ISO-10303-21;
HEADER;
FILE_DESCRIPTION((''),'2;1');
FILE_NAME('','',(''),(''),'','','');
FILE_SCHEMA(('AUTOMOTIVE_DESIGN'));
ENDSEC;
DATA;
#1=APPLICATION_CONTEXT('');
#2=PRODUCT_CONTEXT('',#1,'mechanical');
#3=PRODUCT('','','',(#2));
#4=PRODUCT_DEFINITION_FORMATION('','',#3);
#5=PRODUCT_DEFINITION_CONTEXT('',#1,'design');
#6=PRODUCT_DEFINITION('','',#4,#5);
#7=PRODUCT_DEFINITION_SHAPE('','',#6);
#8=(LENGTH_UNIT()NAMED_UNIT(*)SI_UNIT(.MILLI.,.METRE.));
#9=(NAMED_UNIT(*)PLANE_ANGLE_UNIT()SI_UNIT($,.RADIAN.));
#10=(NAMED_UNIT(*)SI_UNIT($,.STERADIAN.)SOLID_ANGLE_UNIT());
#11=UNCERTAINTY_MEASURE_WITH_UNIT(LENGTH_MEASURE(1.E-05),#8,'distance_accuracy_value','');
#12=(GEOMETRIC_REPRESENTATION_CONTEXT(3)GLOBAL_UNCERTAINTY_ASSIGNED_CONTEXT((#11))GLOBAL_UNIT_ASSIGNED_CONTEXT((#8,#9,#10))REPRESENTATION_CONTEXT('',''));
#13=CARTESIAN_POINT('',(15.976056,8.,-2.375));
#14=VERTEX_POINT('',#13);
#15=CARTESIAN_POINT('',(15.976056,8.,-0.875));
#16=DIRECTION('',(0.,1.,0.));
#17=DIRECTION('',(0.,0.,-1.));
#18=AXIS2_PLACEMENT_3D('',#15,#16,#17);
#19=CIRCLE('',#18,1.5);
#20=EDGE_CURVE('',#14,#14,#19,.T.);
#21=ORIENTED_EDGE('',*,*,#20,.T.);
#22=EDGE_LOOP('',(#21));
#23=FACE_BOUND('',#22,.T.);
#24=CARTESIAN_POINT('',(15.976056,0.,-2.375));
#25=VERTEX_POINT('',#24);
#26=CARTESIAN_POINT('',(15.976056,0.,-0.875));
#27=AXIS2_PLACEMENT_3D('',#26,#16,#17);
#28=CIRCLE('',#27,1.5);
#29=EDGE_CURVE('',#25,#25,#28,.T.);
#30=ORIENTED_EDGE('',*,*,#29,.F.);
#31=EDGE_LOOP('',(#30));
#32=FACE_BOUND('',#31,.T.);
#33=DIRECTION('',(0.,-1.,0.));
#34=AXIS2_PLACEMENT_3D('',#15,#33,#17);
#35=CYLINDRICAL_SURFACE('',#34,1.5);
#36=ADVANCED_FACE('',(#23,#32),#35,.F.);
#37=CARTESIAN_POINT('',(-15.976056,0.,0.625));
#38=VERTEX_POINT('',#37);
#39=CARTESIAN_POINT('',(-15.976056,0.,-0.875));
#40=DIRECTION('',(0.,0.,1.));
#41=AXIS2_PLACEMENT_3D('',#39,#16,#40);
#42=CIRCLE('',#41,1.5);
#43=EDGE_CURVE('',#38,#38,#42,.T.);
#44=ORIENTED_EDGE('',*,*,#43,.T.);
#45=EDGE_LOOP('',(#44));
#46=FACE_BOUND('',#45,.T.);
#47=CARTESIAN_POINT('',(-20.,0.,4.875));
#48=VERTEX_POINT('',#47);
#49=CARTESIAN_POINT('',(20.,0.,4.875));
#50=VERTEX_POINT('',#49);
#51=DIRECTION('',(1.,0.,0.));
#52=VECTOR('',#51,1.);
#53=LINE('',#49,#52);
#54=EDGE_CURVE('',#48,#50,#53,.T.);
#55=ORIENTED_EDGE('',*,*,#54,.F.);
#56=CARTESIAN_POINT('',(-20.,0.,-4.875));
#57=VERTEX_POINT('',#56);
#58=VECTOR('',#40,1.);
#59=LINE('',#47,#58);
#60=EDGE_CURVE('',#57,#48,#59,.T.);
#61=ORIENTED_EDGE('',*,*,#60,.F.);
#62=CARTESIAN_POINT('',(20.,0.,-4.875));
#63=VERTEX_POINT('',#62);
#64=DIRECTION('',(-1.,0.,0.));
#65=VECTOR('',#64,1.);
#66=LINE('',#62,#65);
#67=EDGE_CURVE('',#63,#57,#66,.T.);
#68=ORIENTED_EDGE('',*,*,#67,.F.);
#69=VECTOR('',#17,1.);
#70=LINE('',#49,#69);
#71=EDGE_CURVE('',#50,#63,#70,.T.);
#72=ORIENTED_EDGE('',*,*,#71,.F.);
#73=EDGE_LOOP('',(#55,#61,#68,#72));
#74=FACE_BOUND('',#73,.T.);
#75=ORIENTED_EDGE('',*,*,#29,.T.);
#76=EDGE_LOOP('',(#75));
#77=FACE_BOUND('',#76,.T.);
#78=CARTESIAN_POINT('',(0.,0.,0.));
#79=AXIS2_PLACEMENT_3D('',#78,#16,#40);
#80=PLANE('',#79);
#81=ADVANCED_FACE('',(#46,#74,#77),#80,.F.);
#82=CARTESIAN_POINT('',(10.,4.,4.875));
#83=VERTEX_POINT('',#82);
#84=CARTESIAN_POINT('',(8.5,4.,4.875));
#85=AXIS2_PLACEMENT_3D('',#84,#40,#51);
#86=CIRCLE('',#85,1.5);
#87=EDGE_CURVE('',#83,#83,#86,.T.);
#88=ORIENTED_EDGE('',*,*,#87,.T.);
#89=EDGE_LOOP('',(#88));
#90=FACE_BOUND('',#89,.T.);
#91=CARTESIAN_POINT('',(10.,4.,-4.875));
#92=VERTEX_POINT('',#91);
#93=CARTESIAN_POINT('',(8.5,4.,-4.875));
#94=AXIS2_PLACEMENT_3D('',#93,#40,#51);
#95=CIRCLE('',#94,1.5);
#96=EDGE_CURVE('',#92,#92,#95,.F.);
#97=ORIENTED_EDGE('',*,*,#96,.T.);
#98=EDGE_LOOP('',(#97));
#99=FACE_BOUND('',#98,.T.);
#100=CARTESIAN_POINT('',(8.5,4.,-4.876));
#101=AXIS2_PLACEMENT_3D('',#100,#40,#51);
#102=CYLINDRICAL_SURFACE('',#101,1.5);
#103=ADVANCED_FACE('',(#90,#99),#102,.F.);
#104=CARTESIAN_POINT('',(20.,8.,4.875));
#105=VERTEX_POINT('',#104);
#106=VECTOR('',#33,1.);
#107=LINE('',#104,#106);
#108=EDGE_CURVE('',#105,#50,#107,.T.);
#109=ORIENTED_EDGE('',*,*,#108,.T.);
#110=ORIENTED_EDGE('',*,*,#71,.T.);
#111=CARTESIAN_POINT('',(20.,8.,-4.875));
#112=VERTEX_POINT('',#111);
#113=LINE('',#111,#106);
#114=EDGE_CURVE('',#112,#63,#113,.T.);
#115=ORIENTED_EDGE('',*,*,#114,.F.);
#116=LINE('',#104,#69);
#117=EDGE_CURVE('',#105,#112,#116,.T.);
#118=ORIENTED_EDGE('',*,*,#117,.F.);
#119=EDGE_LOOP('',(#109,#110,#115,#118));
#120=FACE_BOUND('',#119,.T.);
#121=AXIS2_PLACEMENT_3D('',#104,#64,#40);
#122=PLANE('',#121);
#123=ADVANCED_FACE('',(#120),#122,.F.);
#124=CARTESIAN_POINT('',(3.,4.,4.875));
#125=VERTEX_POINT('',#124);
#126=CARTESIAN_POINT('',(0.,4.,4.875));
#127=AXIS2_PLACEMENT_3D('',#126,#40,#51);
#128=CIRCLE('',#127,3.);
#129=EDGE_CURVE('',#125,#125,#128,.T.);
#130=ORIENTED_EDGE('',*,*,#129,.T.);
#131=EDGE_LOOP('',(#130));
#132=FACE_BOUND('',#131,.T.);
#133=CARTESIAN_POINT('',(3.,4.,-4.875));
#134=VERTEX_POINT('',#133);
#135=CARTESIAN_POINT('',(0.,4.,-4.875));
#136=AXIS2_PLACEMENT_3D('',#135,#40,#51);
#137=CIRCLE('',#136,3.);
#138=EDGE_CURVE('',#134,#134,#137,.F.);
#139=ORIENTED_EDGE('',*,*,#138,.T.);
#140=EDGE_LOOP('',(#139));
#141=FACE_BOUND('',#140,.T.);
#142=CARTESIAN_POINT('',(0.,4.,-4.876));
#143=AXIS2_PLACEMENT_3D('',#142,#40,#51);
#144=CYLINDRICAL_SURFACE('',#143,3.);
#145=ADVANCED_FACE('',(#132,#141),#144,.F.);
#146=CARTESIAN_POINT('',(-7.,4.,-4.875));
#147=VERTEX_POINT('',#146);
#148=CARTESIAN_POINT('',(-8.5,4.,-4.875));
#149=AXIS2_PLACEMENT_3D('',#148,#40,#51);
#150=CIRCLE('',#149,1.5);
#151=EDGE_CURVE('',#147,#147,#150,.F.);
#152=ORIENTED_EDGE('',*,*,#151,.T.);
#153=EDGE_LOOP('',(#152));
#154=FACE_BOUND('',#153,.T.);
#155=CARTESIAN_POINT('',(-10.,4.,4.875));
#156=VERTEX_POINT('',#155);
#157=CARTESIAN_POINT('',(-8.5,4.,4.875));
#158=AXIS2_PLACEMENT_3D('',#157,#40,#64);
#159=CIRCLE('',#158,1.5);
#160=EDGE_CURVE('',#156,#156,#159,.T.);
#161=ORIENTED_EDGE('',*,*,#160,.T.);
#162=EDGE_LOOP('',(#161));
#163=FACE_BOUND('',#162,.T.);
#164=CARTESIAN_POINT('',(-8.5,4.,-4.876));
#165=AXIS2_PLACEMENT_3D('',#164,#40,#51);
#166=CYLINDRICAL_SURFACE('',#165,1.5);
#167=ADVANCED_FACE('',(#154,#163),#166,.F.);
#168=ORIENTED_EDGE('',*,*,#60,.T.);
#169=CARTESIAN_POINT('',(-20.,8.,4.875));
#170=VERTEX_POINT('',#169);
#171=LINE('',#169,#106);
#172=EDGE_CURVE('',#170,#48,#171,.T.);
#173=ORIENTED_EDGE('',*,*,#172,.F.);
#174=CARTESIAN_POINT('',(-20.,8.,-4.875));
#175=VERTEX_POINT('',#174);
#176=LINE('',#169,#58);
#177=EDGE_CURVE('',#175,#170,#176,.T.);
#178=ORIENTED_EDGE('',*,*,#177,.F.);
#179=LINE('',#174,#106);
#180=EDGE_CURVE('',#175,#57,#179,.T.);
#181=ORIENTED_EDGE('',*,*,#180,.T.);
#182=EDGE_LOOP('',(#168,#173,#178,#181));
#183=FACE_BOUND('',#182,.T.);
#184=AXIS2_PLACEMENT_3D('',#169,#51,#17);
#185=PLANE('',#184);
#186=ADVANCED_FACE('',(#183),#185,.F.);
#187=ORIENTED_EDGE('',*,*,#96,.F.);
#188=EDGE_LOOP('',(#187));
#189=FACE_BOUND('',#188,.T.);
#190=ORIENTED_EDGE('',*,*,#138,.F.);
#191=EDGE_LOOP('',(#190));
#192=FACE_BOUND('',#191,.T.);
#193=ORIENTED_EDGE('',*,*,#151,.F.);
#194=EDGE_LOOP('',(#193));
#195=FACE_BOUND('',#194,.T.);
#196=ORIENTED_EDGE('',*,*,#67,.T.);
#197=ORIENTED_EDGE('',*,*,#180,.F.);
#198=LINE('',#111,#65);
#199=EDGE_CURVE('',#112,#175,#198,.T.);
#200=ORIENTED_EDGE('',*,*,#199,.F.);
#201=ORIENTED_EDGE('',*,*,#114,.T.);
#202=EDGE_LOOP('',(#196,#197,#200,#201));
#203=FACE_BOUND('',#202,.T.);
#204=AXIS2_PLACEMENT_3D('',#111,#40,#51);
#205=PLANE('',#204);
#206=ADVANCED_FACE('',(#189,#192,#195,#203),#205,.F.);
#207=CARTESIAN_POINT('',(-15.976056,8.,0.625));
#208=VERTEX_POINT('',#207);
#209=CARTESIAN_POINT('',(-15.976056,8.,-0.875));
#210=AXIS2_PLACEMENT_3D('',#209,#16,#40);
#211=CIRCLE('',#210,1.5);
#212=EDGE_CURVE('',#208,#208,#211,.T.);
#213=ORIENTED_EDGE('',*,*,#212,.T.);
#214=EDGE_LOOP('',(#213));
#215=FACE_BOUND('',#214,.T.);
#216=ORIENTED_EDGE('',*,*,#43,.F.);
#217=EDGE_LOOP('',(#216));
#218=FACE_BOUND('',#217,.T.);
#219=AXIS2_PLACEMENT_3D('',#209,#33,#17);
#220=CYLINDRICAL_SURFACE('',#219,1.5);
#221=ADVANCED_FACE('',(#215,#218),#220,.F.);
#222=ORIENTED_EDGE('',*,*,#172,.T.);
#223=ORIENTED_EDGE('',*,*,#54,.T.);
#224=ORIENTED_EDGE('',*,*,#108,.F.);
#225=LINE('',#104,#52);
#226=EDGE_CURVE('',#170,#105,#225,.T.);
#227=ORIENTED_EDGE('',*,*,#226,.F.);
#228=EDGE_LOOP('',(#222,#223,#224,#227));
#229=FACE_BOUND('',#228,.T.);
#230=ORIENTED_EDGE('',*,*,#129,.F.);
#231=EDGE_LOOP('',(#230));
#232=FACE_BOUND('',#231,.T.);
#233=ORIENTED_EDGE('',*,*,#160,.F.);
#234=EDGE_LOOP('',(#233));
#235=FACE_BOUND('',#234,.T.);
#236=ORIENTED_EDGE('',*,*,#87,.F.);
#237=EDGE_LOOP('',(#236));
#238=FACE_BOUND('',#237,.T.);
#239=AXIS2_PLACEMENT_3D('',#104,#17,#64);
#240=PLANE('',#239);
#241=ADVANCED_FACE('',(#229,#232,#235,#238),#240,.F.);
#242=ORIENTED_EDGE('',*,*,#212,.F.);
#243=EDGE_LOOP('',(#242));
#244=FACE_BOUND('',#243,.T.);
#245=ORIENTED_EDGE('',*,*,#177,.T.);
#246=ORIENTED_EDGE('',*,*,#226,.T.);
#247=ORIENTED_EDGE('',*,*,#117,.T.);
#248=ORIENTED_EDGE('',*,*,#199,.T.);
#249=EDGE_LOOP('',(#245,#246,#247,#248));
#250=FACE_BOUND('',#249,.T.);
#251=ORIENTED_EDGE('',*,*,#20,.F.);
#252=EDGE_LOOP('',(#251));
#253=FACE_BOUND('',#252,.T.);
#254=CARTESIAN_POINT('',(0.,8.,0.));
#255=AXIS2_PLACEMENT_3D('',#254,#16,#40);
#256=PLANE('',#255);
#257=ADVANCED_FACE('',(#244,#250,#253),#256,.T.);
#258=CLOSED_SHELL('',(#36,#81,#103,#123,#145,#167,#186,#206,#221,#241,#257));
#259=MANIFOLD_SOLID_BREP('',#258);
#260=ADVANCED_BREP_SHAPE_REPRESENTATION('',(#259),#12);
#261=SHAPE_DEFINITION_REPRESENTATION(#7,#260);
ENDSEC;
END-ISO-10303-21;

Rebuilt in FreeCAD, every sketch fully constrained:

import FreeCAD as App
import Part
import Sketcher

V = App.Vector
Q = App.Units.Quantity


def add_polygon(sketch, points):
    """Adds a closed chain of lines whose ends are joined by coincident constraints."""
    first, n = sketch.GeometryCount, len(points)
    for a, b in zip(points, points[1:] + points[:1]):
        sketch.addGeometry(Part.LineSegment(App.Vector(*a, 0), App.Vector(*b, 0)), False)
    for i in range(n):
        sketch.addConstraint(Sketcher.Constraint("Coincident", first + i, 2, first + (i + 1) % n, 1))

doc = App.newDocument("Part")
body = doc.addObject("PartDesign::Body", "Body")

# Sketch on XZ plane
sketch1 = body.newObject("Sketcher::SketchObject", "Sketch")
sketch1.AttachmentSupport = (doc.getObject("XZ_Plane"), [""])
sketch1.MapMode = "FlatFace"
add_polygon(sketch1, [(-20, -4.9), (-20, 4.9), (20, 4.9), (20, -4.9)])  # lines 0-3
sketch1.addGeometry(Part.Circle(V(-16, -0.9, 0), V(0, 0, 1), 1.5), False)  # 4
sketch1.addGeometry(Part.Circle(V(16, -0.9, 0), V(0, 0, 1), 1.5), False)  # 5
sketch1.addConstraint([
    Sketcher.Constraint("Vertical", 0),
    Sketcher.Constraint("Horizontal", 1),
    Sketcher.Constraint("Vertical", 2),
    Sketcher.Constraint("Horizontal", 3),
    Sketcher.Constraint("Equal", 4, 5),
    Sketcher.Constraint("Symmetric", 0, 2, 2, 2, -1, 1),
    Sketcher.Constraint("Symmetric", 4, 3, 5, 3, -2),
    Sketcher.Constraint("Diameter", 4, Q("3 mm")),
    Sketcher.Constraint("DistanceX", 1, 1, 1, 2, Q("40 mm")),
    Sketcher.Constraint("DistanceY", 2, 2, 5, 3, Q("4 mm")),
    Sketcher.Constraint("DistanceY", 0, 1, 0, 2, Q("9.75 mm")),
    Sketcher.Constraint("DistanceX", 4, 3, -1, 1, Q("15.976056 mm")),
])
pad1 = body.newObject("PartDesign::Pad", "Pad")
pad1.Profile = sketch1
pad1.Length = 8
pad1.Reversed = True

# Sketch on XY plane
sketch2 = body.newObject("Sketcher::SketchObject", "Sketch001")
sketch2.AttachmentSupport = (doc.getObject("XY_Plane"), [""])
sketch2.MapMode = "FlatFace"
sketch2.AttachmentOffset = App.Placement(V(0, 0, 4.875), App.Rotation())
sketch2.addGeometry(Part.Circle(V(0, 4, 0), V(0, 0, 1), 3), False)
sketch2.addConstraint([
    Sketcher.Constraint("PointOnObject", 0, 3, -2),
    Sketcher.Constraint("Diameter", 0, Q("6 mm")),
    Sketcher.Constraint("DistanceY", -1, 1, 0, 3, Q("4 mm")),
])
pocket1 = body.newObject("PartDesign::Pocket", "Pocket")
pocket1.Profile = sketch2
pocket1.Type = "UpToFirst"

# Sketch on XY plane
sketch3 = body.newObject("Sketcher::SketchObject", "Sketch002")
sketch3.AttachmentSupport = (doc.getObject("XY_Plane"), [""])
sketch3.MapMode = "FlatFace"
sketch3.AttachmentOffset = App.Placement(V(0, 0, 4.875), App.Rotation())
sketch3.addGeometry(Part.Circle(V(8.5, 4, 0), V(0, 0, 1), 1.5), False)
sketch3.addConstraint([
    Sketcher.Constraint("Diameter", 0, Q("3 mm")),
    Sketcher.Constraint("DistanceY", -1, 1, 0, 3, Q("4 mm")),
    Sketcher.Constraint("DistanceX", -1, 1, 0, 3, Q("8.5 mm")),
])
pocket2 = body.newObject("PartDesign::Pocket", "Pocket001")
pocket2.Profile = sketch3
pocket2.Type = "UpToFirst"

# Sketch on XY plane
sketch4 = body.newObject("Sketcher::SketchObject", "Sketch003")
sketch4.AttachmentSupport = (doc.getObject("XY_Plane"), [""])
sketch4.MapMode = "FlatFace"
sketch4.AttachmentOffset = App.Placement(V(0, 0, 4.875), App.Rotation())
sketch4.addGeometry(Part.Circle(V(-8.5, 4, 0), V(0, 0, 1), 1.5), False)
sketch4.addConstraint([
    Sketcher.Constraint("Diameter", 0, Q("3 mm")),
    Sketcher.Constraint("DistanceY", -1, 1, 0, 3, Q("4 mm")),
    Sketcher.Constraint("DistanceX", 0, 3, -1, 1, Q("8.5 mm")),
])
pocket3 = body.newObject("PartDesign::Pocket", "Pocket002")
pocket3.Profile = sketch4
pocket3.Type = "UpToFirst"

doc.recompute()
